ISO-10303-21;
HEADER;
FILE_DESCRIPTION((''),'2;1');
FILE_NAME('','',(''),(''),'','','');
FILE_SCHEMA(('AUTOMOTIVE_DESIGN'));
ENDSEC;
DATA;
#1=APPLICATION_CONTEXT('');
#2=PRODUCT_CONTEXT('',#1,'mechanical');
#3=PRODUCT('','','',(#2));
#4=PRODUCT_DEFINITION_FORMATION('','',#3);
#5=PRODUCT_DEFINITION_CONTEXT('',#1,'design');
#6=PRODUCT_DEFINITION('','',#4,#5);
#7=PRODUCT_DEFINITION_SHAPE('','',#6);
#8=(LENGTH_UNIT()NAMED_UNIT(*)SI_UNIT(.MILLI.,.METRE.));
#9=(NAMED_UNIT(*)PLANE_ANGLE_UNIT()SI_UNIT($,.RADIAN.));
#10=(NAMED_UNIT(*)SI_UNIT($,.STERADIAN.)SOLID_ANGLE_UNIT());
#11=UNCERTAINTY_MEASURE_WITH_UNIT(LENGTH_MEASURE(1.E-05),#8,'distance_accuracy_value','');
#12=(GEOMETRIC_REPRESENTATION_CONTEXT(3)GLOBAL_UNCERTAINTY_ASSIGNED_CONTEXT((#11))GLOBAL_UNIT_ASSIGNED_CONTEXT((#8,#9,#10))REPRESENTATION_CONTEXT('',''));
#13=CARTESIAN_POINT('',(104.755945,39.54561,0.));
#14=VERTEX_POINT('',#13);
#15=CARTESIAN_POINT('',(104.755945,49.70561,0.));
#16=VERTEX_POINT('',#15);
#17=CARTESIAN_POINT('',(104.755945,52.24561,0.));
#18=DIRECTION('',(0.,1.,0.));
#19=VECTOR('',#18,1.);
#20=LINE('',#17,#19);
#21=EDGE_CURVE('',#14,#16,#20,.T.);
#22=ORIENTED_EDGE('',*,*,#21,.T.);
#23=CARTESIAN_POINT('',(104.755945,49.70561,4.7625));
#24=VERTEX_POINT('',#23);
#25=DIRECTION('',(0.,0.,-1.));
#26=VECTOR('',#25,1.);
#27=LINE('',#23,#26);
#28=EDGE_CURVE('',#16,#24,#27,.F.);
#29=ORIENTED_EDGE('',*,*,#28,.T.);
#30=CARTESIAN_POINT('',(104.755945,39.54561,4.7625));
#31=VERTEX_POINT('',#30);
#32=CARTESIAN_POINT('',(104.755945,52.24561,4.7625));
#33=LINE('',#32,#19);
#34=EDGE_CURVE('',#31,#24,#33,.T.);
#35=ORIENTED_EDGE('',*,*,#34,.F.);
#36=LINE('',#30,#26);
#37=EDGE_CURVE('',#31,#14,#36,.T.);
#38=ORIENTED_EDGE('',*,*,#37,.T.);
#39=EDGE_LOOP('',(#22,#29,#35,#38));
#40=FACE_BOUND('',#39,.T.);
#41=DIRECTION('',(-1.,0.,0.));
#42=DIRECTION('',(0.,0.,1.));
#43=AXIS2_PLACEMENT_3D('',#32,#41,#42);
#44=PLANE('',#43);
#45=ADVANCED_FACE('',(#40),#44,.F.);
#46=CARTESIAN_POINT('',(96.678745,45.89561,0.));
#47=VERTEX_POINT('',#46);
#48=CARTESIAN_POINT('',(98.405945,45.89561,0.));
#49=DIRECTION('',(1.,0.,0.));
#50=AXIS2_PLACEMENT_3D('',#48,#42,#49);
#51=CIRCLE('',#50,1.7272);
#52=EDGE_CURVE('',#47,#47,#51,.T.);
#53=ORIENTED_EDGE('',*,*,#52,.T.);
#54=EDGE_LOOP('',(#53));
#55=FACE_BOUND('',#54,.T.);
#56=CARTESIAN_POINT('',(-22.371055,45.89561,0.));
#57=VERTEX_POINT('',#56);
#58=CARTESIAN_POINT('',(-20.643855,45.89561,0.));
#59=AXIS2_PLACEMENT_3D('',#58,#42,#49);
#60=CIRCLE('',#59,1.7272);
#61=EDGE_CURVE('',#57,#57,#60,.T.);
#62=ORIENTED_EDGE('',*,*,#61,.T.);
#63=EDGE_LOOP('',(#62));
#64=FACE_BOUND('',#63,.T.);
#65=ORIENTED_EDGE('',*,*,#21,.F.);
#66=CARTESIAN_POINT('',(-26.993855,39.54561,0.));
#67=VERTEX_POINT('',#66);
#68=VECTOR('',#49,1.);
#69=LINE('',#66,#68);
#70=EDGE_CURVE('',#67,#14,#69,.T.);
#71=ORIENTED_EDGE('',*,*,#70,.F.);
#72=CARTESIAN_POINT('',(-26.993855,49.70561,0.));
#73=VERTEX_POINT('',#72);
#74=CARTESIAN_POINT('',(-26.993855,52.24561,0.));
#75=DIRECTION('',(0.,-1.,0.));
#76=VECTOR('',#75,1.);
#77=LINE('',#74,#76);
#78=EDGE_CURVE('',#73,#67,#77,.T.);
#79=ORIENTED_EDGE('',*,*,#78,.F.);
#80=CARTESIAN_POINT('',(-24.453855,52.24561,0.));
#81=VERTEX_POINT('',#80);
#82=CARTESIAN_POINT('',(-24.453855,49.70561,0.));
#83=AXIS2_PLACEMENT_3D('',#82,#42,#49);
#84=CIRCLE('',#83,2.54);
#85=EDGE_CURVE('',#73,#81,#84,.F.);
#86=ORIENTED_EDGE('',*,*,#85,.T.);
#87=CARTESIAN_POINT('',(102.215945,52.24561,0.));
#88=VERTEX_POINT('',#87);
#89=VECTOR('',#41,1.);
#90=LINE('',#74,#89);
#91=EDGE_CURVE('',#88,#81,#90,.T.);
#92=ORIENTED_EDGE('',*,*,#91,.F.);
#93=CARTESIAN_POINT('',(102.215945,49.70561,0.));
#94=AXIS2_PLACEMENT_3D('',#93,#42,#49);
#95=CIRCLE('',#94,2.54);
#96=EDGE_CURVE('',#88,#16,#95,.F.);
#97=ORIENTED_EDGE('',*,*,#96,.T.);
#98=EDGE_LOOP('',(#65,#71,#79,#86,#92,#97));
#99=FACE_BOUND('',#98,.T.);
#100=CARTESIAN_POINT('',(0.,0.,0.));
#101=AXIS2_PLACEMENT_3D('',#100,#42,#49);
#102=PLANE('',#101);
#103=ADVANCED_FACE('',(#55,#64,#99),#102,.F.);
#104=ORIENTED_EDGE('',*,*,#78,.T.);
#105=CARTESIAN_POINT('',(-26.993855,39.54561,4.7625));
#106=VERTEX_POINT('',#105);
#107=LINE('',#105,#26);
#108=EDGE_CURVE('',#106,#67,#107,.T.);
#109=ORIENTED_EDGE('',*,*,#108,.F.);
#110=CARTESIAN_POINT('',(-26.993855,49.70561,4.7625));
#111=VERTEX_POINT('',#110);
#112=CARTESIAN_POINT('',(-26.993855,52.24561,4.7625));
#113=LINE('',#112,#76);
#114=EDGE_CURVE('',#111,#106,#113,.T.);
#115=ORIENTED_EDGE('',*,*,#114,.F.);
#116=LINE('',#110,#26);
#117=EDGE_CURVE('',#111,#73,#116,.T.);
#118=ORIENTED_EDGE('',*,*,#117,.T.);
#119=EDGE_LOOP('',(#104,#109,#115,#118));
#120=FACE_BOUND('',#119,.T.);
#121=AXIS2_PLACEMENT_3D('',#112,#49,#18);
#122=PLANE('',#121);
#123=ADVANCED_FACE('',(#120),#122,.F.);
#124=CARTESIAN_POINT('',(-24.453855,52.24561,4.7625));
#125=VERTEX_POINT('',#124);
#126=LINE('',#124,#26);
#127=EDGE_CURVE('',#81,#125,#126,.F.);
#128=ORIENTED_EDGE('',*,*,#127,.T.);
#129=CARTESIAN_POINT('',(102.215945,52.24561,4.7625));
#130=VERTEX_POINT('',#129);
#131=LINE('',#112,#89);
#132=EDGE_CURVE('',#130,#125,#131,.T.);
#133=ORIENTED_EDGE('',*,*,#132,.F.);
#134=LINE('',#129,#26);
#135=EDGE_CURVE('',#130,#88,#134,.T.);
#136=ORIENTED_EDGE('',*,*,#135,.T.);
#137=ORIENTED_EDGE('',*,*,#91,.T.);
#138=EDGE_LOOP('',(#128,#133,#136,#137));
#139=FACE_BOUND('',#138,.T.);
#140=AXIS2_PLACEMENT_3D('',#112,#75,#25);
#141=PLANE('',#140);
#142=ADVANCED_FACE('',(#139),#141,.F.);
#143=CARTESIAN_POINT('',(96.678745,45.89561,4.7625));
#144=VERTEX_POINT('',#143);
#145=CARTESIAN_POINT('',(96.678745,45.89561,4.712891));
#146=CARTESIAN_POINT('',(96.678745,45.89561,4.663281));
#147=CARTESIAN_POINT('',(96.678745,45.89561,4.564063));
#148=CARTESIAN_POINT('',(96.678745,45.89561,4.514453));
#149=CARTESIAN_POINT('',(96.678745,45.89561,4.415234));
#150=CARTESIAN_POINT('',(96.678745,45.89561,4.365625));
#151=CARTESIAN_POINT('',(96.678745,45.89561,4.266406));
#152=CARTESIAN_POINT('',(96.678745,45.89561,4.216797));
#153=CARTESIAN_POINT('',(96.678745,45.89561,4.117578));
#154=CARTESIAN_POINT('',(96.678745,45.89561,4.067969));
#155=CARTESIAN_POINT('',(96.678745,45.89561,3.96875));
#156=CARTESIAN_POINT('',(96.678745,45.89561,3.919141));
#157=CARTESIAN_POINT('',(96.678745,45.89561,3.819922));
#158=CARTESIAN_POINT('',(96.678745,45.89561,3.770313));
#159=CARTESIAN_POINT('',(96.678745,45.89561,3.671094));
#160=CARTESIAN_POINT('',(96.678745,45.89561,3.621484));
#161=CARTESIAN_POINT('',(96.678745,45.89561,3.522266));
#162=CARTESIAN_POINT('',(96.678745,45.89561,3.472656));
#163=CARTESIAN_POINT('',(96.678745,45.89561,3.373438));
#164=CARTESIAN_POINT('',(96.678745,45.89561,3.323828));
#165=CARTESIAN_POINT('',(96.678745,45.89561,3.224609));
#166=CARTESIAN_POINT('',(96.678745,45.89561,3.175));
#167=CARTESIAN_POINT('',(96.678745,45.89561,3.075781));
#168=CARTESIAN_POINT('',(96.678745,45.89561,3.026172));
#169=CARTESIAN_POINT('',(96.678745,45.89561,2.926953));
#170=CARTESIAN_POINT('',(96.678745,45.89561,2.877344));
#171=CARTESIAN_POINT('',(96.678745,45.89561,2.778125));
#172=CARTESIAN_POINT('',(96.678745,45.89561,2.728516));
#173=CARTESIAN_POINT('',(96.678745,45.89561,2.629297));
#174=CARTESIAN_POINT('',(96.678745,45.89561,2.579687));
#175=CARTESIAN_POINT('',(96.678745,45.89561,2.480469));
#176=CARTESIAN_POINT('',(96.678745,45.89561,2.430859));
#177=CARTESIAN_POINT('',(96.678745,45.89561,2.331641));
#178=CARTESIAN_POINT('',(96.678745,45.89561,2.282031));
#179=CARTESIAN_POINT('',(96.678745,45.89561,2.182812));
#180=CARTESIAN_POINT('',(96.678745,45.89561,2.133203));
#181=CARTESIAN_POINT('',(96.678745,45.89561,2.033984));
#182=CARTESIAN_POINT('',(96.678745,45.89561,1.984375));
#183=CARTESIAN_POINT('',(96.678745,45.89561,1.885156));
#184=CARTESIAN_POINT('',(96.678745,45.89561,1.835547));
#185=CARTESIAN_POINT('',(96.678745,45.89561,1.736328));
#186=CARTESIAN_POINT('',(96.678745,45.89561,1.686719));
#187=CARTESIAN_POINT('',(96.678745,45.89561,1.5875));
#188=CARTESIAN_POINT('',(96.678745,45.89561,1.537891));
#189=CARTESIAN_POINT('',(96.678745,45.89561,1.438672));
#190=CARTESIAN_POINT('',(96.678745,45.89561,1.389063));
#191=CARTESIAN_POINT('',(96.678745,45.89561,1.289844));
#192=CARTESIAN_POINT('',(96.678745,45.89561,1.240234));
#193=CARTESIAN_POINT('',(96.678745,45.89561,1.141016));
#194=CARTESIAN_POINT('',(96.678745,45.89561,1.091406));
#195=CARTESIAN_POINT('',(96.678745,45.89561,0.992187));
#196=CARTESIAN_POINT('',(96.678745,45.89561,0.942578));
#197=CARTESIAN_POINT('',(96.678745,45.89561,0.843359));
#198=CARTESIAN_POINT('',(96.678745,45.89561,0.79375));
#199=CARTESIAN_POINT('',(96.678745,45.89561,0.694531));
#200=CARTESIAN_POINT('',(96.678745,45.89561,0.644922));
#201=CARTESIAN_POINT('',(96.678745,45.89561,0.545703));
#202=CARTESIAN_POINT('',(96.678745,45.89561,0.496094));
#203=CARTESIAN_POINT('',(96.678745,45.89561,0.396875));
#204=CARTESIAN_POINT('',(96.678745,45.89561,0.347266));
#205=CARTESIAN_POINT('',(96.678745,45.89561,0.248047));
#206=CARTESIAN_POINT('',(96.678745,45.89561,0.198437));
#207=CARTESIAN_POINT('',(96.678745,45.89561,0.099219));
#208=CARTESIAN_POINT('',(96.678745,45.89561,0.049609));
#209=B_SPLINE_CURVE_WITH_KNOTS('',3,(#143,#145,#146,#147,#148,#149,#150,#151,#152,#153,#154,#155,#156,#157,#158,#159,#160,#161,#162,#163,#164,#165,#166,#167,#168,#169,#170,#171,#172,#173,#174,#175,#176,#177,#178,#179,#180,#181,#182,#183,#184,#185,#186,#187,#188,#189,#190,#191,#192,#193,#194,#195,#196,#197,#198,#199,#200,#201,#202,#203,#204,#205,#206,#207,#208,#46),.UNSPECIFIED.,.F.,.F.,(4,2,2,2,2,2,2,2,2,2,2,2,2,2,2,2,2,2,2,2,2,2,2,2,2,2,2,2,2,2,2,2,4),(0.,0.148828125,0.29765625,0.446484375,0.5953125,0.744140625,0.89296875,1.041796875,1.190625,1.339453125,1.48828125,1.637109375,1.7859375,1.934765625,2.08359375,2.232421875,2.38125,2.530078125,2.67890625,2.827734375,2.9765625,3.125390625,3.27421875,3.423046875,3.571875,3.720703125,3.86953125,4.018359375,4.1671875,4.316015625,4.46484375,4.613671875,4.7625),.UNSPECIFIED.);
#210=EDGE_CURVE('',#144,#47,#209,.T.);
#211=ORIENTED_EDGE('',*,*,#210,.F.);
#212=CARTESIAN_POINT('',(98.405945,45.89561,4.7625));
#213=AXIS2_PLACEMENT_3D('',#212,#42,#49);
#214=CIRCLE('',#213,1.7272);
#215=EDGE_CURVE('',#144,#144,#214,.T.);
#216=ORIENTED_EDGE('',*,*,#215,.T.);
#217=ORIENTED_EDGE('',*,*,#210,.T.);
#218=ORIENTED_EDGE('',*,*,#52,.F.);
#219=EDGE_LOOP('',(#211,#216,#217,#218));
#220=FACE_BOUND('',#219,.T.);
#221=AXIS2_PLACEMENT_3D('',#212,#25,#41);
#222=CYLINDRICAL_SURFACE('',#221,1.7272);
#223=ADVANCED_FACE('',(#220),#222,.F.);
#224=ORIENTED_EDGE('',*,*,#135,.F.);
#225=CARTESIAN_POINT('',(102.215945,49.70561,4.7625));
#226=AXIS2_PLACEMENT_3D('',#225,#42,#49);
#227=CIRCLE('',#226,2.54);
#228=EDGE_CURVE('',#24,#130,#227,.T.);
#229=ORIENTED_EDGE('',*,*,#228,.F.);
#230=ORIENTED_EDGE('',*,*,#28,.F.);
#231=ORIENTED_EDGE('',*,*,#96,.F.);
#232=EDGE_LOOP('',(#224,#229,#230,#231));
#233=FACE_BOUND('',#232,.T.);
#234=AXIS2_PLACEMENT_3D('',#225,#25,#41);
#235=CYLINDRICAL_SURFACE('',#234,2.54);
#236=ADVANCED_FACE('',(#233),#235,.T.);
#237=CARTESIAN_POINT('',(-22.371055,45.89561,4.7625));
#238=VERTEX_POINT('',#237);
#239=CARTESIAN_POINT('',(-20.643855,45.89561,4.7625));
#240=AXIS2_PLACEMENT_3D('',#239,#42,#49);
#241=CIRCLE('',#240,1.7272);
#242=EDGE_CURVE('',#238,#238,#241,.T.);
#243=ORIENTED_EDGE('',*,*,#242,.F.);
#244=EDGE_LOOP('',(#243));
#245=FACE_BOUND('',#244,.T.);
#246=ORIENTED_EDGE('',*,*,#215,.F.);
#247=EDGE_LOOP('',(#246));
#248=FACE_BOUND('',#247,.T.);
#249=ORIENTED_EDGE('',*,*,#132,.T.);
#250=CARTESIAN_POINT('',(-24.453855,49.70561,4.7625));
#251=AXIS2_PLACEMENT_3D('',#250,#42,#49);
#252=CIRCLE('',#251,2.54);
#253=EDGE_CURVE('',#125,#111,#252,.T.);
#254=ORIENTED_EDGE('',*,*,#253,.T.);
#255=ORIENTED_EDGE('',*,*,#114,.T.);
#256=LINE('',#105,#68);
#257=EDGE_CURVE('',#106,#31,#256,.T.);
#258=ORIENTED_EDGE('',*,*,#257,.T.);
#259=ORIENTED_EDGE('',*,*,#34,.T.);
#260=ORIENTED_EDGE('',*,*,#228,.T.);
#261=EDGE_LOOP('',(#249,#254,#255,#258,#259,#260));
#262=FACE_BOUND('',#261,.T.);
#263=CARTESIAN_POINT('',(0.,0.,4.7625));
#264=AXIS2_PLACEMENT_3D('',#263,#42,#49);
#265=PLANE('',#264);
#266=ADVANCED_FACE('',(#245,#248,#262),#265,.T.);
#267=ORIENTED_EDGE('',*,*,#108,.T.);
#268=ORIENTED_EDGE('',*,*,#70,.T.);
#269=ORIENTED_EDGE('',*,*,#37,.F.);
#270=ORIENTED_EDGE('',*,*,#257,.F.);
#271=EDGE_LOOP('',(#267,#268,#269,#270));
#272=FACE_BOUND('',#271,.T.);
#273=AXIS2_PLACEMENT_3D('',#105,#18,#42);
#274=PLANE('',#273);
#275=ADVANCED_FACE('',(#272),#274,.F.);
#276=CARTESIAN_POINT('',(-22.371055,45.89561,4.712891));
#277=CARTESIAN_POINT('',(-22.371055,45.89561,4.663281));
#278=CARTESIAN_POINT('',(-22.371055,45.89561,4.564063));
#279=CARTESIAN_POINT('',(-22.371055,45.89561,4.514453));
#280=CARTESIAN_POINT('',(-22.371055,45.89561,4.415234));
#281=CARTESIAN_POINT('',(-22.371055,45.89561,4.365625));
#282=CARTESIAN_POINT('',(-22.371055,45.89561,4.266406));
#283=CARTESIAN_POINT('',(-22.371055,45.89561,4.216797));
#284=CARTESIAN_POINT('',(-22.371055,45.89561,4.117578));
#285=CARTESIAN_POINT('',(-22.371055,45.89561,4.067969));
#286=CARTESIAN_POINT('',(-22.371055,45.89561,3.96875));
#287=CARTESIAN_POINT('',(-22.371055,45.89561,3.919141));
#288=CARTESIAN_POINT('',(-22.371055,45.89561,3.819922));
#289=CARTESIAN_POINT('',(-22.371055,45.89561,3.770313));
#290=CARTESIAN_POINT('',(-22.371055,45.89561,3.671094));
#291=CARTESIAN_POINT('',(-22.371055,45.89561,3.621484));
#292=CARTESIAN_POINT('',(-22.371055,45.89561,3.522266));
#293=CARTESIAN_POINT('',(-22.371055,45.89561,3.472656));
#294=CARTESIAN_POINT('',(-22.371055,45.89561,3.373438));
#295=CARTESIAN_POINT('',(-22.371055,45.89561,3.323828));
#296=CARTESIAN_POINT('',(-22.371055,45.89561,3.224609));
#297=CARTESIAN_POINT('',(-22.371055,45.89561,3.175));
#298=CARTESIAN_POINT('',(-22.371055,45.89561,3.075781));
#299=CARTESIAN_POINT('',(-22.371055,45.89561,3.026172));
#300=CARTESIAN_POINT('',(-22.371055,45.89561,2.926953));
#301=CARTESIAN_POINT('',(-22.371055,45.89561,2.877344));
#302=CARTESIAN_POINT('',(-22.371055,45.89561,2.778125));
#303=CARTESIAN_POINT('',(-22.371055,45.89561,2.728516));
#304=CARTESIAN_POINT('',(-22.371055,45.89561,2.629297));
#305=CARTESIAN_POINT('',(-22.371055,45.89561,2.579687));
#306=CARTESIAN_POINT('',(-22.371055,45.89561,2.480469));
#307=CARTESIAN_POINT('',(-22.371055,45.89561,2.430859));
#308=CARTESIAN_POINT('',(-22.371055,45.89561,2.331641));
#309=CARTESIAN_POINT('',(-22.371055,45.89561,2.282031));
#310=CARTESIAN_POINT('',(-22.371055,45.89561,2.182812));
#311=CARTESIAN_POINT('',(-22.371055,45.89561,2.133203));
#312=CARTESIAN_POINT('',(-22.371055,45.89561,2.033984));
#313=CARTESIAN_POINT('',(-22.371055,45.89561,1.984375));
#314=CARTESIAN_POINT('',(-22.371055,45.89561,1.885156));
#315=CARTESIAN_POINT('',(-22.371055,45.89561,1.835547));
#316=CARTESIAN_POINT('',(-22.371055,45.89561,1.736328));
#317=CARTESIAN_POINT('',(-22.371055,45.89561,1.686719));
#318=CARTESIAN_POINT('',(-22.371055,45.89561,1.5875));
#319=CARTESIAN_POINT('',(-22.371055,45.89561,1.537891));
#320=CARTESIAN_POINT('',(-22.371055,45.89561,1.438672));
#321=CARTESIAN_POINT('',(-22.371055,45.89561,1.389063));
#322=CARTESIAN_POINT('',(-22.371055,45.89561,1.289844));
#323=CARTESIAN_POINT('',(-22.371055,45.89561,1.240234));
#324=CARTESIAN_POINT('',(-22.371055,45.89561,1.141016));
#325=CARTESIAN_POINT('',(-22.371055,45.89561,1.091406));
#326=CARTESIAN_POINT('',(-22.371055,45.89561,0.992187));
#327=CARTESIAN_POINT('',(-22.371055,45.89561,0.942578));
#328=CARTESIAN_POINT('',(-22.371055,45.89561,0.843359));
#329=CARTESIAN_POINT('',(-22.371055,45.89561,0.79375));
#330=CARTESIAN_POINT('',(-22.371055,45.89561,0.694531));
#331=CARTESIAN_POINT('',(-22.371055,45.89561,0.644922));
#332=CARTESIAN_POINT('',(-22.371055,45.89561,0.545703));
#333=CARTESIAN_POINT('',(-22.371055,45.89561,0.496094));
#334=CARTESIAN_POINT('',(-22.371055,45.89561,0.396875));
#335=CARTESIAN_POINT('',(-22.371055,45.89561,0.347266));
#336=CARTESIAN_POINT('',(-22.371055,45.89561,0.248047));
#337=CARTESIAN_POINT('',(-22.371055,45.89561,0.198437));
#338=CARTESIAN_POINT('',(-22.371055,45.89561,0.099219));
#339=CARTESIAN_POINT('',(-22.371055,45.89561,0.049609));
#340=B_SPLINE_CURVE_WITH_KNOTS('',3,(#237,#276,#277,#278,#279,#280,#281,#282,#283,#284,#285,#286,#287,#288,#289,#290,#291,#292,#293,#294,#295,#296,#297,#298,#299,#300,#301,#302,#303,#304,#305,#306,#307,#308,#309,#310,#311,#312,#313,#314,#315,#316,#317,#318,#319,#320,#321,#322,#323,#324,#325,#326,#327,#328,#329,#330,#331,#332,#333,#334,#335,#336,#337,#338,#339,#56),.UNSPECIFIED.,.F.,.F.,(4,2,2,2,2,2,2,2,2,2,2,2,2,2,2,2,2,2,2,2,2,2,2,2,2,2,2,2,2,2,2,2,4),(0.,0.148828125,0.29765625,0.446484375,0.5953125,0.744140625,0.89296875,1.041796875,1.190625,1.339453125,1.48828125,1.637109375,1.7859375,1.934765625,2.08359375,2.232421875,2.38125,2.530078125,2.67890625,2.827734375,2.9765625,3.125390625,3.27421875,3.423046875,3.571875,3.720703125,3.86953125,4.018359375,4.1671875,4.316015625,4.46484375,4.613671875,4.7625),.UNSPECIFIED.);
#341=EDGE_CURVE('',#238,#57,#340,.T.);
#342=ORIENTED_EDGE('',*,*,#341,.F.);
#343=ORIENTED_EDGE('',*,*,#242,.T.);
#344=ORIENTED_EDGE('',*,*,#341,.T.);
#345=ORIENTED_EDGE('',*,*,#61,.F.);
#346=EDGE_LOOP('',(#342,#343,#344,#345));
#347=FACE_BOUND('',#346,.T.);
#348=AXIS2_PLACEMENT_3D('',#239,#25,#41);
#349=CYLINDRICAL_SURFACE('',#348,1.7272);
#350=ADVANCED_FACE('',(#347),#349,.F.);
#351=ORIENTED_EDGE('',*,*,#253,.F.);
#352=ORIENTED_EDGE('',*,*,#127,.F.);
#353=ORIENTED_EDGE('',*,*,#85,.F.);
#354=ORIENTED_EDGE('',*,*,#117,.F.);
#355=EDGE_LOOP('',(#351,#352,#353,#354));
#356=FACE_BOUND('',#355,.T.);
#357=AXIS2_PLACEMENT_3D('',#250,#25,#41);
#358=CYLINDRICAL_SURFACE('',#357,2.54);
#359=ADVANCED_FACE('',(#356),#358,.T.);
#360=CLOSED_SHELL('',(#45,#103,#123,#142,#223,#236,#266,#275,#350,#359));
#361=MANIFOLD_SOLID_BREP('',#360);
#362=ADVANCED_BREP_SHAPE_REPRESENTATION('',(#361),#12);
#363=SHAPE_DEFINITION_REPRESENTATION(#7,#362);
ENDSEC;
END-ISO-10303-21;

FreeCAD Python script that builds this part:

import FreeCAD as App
import Part
import Sketcher

V = App.Vector
Q = App.Units.Quantity


def edges_at(feature, points):
    """Names of the edges that pass closest to the given points."""
    edges = feature.Shape.Edges
    near = lambda p: min(range(len(edges)), key=lambda i: edges[i].distToShape(Part.Vertex(*p))[0])
    return sorted({f"Edge{near(p) + 1}" for p in points})

doc = App.newDocument("Part")
params = doc.addObject("Spreadsheet::Sheet", "Params")
for row, (alias, value) in enumerate([
    ("sketch1_diameter", "0.136 in"),
    ("sketch1_height", "0.5 in"),
    ("sketch1_width", "5.187 in"),
    ("pad1_length", "0.1875 in"),
    ("fillet_radius", "0.1 in"),
], start=1):
    params.set(f"A{row}", alias)
    params.set(f"B{row}", "=" + value)
    params.setAlias(f"B{row}", alias)

body = doc.addObject("PartDesign::Body", "Body")

# Sketch on XY plane
sketch1 = body.newObject("Sketcher::SketchObject", "Sketch")
sketch1.AttachmentSupport = (doc.getObject("XY_Plane"), [""])
sketch1.MapMode = "FlatFace"
sketch1.addGeometry([
    Part.LineSegment(V(-27, 52.2, 0), V(-27, 39.5, 0)),  # 0
    Part.LineSegment(V(-27, 39.5, 0), V(104.8, 39.5, 0)),  # 1
    Part.LineSegment(V(104.8, 39.5, 0), V(104.8, 52.2, 0)),  # 2
    Part.LineSegment(V(104.8, 52.2, 0), V(-27, 52.2, 0)),  # 3
    Part.Circle(V(-20.6, 45.9, 0), V(0, 0, 1), 1.7),  # 4
    Part.Circle(V(98.4, 45.9, 0), V(0, 0, 1), 1.7),  # 5
], False)
sketch1.addConstraint([
    Sketcher.Constraint("Coincident", 0, 2, 1, 1),
    Sketcher.Constraint("Coincident", 1, 2, 2, 1),
    Sketcher.Constraint("Coincident", 2, 2, 3, 1),
    Sketcher.Constraint("Coincident", 3, 2, 0, 1),
    Sketcher.Constraint("Vertical", 0),
    Sketcher.Constraint("Horizontal", 1),
    Sketcher.Constraint("Vertical", 2),
    Sketcher.Constraint("Horizontal", 3),
    Sketcher.Constraint("Equal", 4, 5),
    Sketcher.Constraint("Horizontal", 4, 3, 5, 3),
    Sketcher.Constraint("Diameter", 4, Q("0.136 in")),
    Sketcher.Constraint("DistanceY", 0, 2, 0, 1, Q("0.5 in")),
    Sketcher.Constraint("DistanceX", 1, 1, 1, 2, Q("5.187 in")),
    Sketcher.Constraint("DistanceX", 0, 2, 4, 3, Q("0.25 in")),
    Sketcher.Constraint("DistanceY", 0, 2, 4, 3, Q("0.25 in")),
    Sketcher.Constraint("DistanceX", 5, 3, 1, 2, Q("0.25 in")),
    Sketcher.Constraint("DistanceY", -1, 1, 4, 3, 45.89561),
    Sketcher.Constraint("DistanceX", 4, 3, -1, 1, 20.643855),
])
sketch1.setExpression("Constraints[10]", "Params.sketch1_diameter")
sketch1.setExpression("Constraints[11]", "Params.sketch1_height")
sketch1.setExpression("Constraints[12]", "Params.sketch1_width")
pad1 = body.newObject("PartDesign::Pad", "Pad")
pad1.Profile = sketch1
pad1.setExpression("Length", "Params.pad1_length")
doc.recompute()

fillet = body.newObject("PartDesign::Fillet", "Fillet")
fillet.Base = (pad1, edges_at(pad1, [(-26.994, 52.246, 2.381), (104.756, 52.246, 2.381)]))
fillet.setExpression("Radius", "Params.fillet_radius")

doc.recompute()
